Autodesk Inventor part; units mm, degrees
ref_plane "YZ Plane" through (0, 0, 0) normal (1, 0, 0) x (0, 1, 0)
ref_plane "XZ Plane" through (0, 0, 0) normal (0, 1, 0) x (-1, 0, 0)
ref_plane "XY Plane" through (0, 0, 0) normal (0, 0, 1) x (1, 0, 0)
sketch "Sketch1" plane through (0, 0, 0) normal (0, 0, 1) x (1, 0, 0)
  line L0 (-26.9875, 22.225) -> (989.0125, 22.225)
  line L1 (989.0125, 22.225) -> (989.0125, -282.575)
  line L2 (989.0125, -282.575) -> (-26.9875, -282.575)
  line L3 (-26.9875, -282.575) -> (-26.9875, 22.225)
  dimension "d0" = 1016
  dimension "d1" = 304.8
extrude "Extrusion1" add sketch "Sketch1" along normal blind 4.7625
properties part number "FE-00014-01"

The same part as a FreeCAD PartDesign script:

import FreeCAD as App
import Part
import Sketcher
from FreeCAD import Vector
Q = App.Units.Quantity

doc = App.newDocument("Part")
body = doc.addObject("PartDesign::Body", "Body")

sketch1 = body.newObject("Sketcher::SketchObject", "Sketch")
sketch1.AttachmentSupport = (doc.getObject("XY_Plane"), [""])
sketch1.MapMode = "FlatFace"
sketch1.addGeometry([
    Part.LineSegment(Vector(989, 22, 0), Vector(-27, 22, 0)),
    Part.LineSegment(Vector(-27, 22, 0), Vector(-27, -283, 0)),
    Part.LineSegment(Vector(-27, -283, 0), Vector(989, -283, 0)),
    Part.LineSegment(Vector(989, -283, 0), Vector(989, 22, 0)),
], False)
sketch1.addConstraint([
    Sketcher.Constraint("Coincident", 0, 2, 1, 1),
    Sketcher.Constraint("Coincident", 1, 2, 2, 1),
    Sketcher.Constraint("Coincident", 2, 2, 3, 1),
    Sketcher.Constraint("Coincident", 3, 2, 0, 1),
    Sketcher.Constraint("Horizontal", 0),
    Sketcher.Constraint("Vertical", 1),
    Sketcher.Constraint("Horizontal", 2),
    Sketcher.Constraint("Vertical", 3),
    Sketcher.Constraint("DistanceX", 0, 2, 0, 1, Q("40 in")),
    Sketcher.Constraint("DistanceY", 1, 2, 1, 1, Q("12 in")),
    Sketcher.Constraint("DistanceX", 0, 2, -1, 1, Q("1.0625 in")),
    Sketcher.Constraint("DistanceY", -1, 1, 0, 2, Q("0.875 in")),
])
pad1 = body.newObject("PartDesign::Pad", "Pad")
pad1.Profile = sketch1
pad1.Length = Q("0.1875 in")

doc.recompute()
